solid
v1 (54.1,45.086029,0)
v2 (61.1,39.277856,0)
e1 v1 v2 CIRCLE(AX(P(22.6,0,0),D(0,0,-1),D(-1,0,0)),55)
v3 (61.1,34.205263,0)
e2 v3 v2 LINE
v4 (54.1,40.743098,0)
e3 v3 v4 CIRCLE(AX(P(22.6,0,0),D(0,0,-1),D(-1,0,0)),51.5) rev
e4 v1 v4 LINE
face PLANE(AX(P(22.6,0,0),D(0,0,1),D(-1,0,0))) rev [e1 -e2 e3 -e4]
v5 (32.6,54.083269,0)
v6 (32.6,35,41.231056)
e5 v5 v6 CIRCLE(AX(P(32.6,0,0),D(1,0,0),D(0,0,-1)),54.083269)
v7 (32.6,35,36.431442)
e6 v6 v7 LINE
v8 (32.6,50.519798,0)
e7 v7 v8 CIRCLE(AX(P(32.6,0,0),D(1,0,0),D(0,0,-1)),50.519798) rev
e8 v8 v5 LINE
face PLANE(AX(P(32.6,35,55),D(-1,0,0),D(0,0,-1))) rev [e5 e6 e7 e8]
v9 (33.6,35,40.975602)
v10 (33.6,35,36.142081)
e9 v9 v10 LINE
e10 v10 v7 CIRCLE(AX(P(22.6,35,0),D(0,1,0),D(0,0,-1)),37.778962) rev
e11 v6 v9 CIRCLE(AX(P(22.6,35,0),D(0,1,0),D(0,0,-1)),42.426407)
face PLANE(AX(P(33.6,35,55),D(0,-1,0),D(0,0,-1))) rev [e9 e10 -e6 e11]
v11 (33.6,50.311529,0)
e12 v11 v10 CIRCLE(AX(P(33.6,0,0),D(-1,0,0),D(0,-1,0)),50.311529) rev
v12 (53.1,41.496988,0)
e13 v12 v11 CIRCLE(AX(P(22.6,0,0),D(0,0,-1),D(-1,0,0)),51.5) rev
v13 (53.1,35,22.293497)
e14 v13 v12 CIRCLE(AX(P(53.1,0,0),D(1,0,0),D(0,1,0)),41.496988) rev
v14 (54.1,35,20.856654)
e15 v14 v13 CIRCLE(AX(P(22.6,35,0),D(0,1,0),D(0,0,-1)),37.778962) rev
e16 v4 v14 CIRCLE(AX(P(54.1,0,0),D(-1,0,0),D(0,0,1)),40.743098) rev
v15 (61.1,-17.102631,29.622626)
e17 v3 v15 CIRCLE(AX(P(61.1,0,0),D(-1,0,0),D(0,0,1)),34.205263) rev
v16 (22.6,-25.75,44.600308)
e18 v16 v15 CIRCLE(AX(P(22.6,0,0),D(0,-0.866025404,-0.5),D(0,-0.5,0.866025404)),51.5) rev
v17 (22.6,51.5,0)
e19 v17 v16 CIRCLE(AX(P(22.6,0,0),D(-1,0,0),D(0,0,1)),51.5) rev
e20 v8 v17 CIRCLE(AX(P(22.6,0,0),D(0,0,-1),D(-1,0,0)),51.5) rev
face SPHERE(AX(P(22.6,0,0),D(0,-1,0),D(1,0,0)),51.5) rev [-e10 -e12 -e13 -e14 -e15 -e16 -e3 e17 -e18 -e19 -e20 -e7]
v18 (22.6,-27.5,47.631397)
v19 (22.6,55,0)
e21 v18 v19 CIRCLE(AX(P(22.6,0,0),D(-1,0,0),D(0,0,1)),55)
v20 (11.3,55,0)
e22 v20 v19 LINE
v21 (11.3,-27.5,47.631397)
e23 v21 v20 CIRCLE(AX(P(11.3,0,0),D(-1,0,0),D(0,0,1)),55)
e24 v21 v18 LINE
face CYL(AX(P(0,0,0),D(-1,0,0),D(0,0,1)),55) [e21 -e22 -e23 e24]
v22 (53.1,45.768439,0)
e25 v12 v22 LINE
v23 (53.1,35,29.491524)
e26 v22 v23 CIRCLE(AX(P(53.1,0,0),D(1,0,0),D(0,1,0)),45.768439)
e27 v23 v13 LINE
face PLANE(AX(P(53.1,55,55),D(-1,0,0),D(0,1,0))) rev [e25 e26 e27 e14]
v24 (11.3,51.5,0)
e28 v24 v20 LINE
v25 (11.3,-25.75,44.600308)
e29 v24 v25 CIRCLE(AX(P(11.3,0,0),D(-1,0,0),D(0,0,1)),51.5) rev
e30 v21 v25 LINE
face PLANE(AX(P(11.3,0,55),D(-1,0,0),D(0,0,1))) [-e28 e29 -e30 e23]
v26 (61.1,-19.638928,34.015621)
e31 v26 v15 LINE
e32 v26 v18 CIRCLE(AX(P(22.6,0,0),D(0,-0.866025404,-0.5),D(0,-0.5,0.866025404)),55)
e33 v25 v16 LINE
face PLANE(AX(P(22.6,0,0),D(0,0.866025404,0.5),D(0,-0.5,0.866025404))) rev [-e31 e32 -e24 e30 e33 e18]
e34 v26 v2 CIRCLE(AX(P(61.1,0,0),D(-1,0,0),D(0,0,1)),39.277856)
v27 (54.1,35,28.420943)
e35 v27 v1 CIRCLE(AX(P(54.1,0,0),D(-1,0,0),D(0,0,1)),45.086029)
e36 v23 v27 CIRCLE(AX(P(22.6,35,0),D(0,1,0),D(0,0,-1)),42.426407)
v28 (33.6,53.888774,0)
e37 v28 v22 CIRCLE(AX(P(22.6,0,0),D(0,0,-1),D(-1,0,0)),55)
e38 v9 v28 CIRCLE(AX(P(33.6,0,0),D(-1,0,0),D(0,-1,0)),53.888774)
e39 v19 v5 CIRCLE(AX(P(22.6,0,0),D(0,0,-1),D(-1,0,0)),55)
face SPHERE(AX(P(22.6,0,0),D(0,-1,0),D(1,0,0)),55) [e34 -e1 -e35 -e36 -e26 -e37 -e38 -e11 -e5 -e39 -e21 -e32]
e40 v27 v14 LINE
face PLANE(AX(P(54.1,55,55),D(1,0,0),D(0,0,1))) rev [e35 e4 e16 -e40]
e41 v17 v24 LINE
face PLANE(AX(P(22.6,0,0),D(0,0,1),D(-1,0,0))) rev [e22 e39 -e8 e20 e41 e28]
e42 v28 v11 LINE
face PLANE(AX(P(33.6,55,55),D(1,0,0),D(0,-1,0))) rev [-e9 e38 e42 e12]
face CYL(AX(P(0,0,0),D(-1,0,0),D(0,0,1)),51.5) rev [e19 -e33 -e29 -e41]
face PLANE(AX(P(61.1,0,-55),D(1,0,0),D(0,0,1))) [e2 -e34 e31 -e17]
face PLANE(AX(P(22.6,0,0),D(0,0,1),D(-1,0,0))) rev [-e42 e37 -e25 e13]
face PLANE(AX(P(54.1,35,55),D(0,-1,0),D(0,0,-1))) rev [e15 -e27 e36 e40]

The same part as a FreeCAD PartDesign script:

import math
import FreeCAD as App
import Part
import Sketcher
from FreeCAD import Vector
Q = App.Units.Quantity


def add_polygon(sketch, points):
    """Adds a closed chain of lines whose ends are joined by coincident constraints."""
    first, n = sketch.GeometryCount, len(points)
    for a, b in zip(points, points[1:] + points[:1]):
        sketch.addGeometry(Part.LineSegment(App.Vector(*a, 0), App.Vector(*b, 0)), False)
    for i in range(n):
        sketch.addConstraint(Sketcher.Constraint("Coincident", first + i, 2, first + (i + 1) % n, 1))

doc = App.newDocument("Part")
params = doc.addObject("Spreadsheet::Sheet", "Params")
for row, (alias, value) in enumerate([
    ("sketch1_radius", "55 mm"),
    ("sketch1_radius2", "51.5 mm"),
    ("revolution_angle", "360 deg"),
    ("sketch2_width", "55 mm"),
    ("sketch2_height", "110 mm"),
    ("sketch3_height", "110 mm"),
    ("sketch5_width", "1 mm"),
    ("sketch5_height", "20 mm"),
    ("sketch6_width", "11.3 mm"),
    ("sketch6_height", "3.5 mm"),
    ("revolution2_angle", "360 deg"),
    ("sketch7_radius", "55 mm"),
    ("pocket5_length", "10 mm"),
    ("sketch8_width", "49.8 mm"),
    ("sketch10_radius", "55 mm"),
    ("pocket8_length", "70 mm"),
], start=1):
    params.set(f"A{row}", alias)
    params.set(f"B{row}", "=" + value)
    params.setAlias(f"B{row}", alias)

body = doc.addObject("PartDesign::Body", "Body")

sketch1 = body.newObject("Sketcher::SketchObject", "Sketch")
sketch1.AttachmentSupport = (doc.getObject("XY_Plane"), [""])
sketch1.MapMode = "FlatFace"
sketch1.addGeometry(Part.LineSegment(Vector(0, 51.5, 0), Vector(0, 55, 0)), False)
sketch1.addGeometry(Part.ArcOfCircle(Part.Circle(Vector(0, 0, 0), Vector(0, 0, 1), 55), math.radians(90), math.radians(270)), False)
sketch1.addGeometry(Part.LineSegment(Vector(0, -55, 0), Vector(0, -51.5, 0)), False)
sketch1.addGeometry(Part.ArcOfCircle(Part.Circle(Vector(0, 0, 0), Vector(0, 0, 1), 51.5), math.radians(90), math.radians(270)), False)
sketch1.addConstraint(Sketcher.Constraint("Coincident", 0, 2, 1, 1))
sketch1.addConstraint(Sketcher.Constraint("Coincident", 1, 2, 2, 1))
sketch1.addConstraint(Sketcher.Constraint("Coincident", 2, 2, 3, 2))
sketch1.addConstraint(Sketcher.Constraint("Coincident", 3, 1, 0, 1))
sketch1.addConstraint(Sketcher.Constraint("Vertical", 0))
sketch1.addConstraint(Sketcher.Constraint("Vertical", 2))
sketch1.addConstraint(Sketcher.Constraint("Coincident", 1, 3, -1, 1))
sketch1.addConstraint(Sketcher.Constraint("Coincident", 3, 3, -1, 1))
sketch1.addConstraint(Sketcher.Constraint("PointOnObject", 0, 2, -2))
sketch1.addConstraint(Sketcher.Constraint("PointOnObject", 1, 2, -2))
sketch1.addConstraint(Sketcher.Constraint("Radius", 1, 55.0))
sketch1.addConstraint(Sketcher.Constraint("Radius", 3, 51.5))
sketch1.setExpression("Constraints[10]", "Params.sketch1_radius")
sketch1.setExpression("Constraints[11]", "Params.sketch1_radius2")
revolution = body.newObject("PartDesign::Revolution", "Revolution")
revolution.Profile = sketch1
revolution.ReferenceAxis = (sketch1, ["V_Axis"])
revolution.setExpression("Angle", "Params.revolution_angle")

sketch2 = body.newObject("Sketcher::SketchObject", "Sketch001")
sketch2.AttachmentSupport = (doc.getObject("XY_Plane"), [""])
sketch2.MapMode = "FlatFace"
add_polygon(sketch2, [(0, 55), (0, -55), (55, -55), (55, 55)])
sketch2.addConstraint(Sketcher.Constraint("Vertical", 0))
sketch2.addConstraint(Sketcher.Constraint("Horizontal", 1))
sketch2.addConstraint(Sketcher.Constraint("Vertical", 2))
sketch2.addConstraint(Sketcher.Constraint("Horizontal", 3))
sketch2.addConstraint(Sketcher.Constraint("Symmetric", 0, 2, 3, 2, -1, 1))
sketch2.addConstraint(Sketcher.Constraint("DistanceX", 1, 1, 1, 2, 55.0))
sketch2.addConstraint(Sketcher.Constraint("DistanceY", 0, 2, 0, 1, 110.0))
sketch2.setExpression("Constraints[9]", "Params.sketch2_width")
sketch2.setExpression("Constraints[10]", "Params.sketch2_height")
pocket1 = body.newObject("PartDesign::Pocket", "Pocket")
pocket1.Profile = sketch2
pocket1.Type = "ThroughAll"
pocket1.Midplane = True

sketch3 = body.newObject("Sketcher::SketchObject", "Sketch002")
sketch3.AttachmentSupport = (doc.getObject("XY_Plane"), [""])
sketch3.MapMode = "FlatFace"
add_polygon(sketch3, [(-62, 55), (-62, -55), (-39, -55), (-39, 55)])
sketch3.addConstraint(Sketcher.Constraint("Vertical", 0))
sketch3.addConstraint(Sketcher.Constraint("Horizontal", 1))
sketch3.addConstraint(Sketcher.Constraint("Vertical", 2))
sketch3.addConstraint(Sketcher.Constraint("Horizontal", 3))
sketch3.addConstraint(Sketcher.Constraint("DistanceY", 0, 2, 0, 1, 110.0))
sketch3.addConstraint(Sketcher.Constraint("DistanceY", 0, 2, -1, 1, 55.0))
sketch3.addConstraint(Sketcher.Constraint("DistanceX", 1, 2, -1, 1, 38.5))
sketch3.addConstraint(Sketcher.Constraint("DistanceX", 1, 1, 1, 2, 23.273135))
sketch3.setExpression("Constraints[8]", "Params.sketch3_height")
pocket2 = body.newObject("PartDesign::Pocket", "Pocket001")
pocket2.Profile = sketch3
pocket2.Type = "ThroughAll"
pocket2.Midplane = True

sketch4 = body.newObject("Sketcher::SketchObject", "Sketch003")
sketch4.AttachmentSupport = (doc.getObject("YZ_Plane"), [""])
sketch4.MapMode = "FlatFace"
sketch4.AttachmentOffset = App.Placement(Vector(0, 0, -38.5), App.Rotation())
sketch4.addGeometry(Part.LineSegment(Vector(0, 0, 0), Vector(65, 0, 0)), False)
sketch4.addGeometry(Part.ArcOfCircle(Part.Circle(Vector(0, 0, 0), Vector(0, 0, 1), 65), math.radians(120), math.radians(360)), False)
sketch4.addGeometry(Part.LineSegment(Vector(-32, 56, 0), Vector(0, 0, 0)), False)
sketch4.addConstraint(Sketcher.Constraint("Coincident", 0, 2, 1, 2))
sketch4.addConstraint(Sketcher.Constraint("Coincident", 1, 1, 2, 1))
sketch4.addConstraint(Sketcher.Constraint("Coincident", 2, 2, 0, 1))
sketch4.addConstraint(Sketcher.Constraint("Horizontal", 0))
sketch4.addConstraint(Sketcher.Constraint("Coincident", 1, 3, -1, 1))
sketch4.addConstraint(Sketcher.Constraint("Coincident", 2, 2, -1, 1))
sketch4.addConstraint(Sketcher.Constraint("Angle", 2, Q("-60 deg")))
sketch4.addConstraint(Sketcher.Constraint("Radius", 1, 64.529887))
pocket3 = body.newObject("PartDesign::Pocket", "Pocket002")
pocket3.Profile = sketch4
pocket3.Type = "ThroughAll"
pocket3.Reversed = True

sketch5 = body.newObject("Sketcher::SketchObject", "Sketch004")
sketch5.AttachmentSupport = (doc.getObject("XY_Plane"), [""])
sketch5.MapMode = "FlatFace"
add_polygon(sketch5, [(-30.5, 55), (-30.5, 35), (-31.5, 35), (-31.5, 55)])
add_polygon(sketch5, [(-10, 55), (-10, 35), (-11, 35), (-11, 55)])
sketch5.addConstraint(Sketcher.Constraint("Vertical", 0))
sketch5.addConstraint(Sketcher.Constraint("Horizontal", 1))
sketch5.addConstraint(Sketcher.Constraint("Vertical", 2))
sketch5.addConstraint(Sketcher.Constraint("Horizontal", 3))
sketch5.addConstraint(Sketcher.Constraint("Vertical", 4))
sketch5.addConstraint(Sketcher.Constraint("Horizontal", 5))
sketch5.addConstraint(Sketcher.Constraint("Vertical", 6))
sketch5.addConstraint(Sketcher.Constraint("Horizontal", 7))
sketch5.addConstraint(Sketcher.Constraint("Horizontal", 1, 2, 4, 2))
sketch5.addConstraint(Sketcher.Constraint("Horizontal", 3, 2, 6, 2))
sketch5.addConstraint(Sketcher.Constraint("Equal", 3, 5))
sketch5.addConstraint(Sketcher.Constraint("DistanceX", 1, 2, 1, 1, 1.0))
sketch5.addConstraint(Sketcher.Constraint("DistanceY", 0, 2, 0, 1, 20.0))
sketch5.addConstraint(Sketcher.Constraint("DistanceY", -1, 1, 0, 2, 35.0))
sketch5.addConstraint(Sketcher.Constraint("DistanceX", 4, 2, -1, 1, 10.0))
sketch5.addConstraint(Sketcher.Constraint("DistanceX", 0, 2, -1, 1, 30.5))
sketch5.setExpression("Constraints[19]", "Params.sketch5_width")
sketch5.setExpression("Constraints[20]", "Params.sketch5_height")
pocket4 = body.newObject("PartDesign::Pocket", "Pocket003")
pocket4.Profile = sketch5
pocket4.Type = "ThroughAll"
pocket4.Reversed = True

sketch6 = body.newObject("Sketcher::SketchObject", "Sketch005")
sketch6.AttachmentSupport = (doc.getObject("XY_Plane"), [""])
sketch6.MapMode = "FlatFace"
add_polygon(sketch6, [(0, 55), (0, 51.5), (11.3, 51.5), (11.3, 55)])
sketch6.addConstraint(Sketcher.Constraint("Vertical", 0))
sketch6.addConstraint(Sketcher.Constraint("Horizontal", 1))
sketch6.addConstraint(Sketcher.Constraint("Vertical", 2))
sketch6.addConstraint(Sketcher.Constraint("Horizontal", 3))
sketch6.addConstraint(Sketcher.Constraint("PointOnObject", 0, 2, -2))
sketch6.addConstraint(Sketcher.Constraint("DistanceX", 1, 1, 1, 2, 11.3))
sketch6.addConstraint(Sketcher.Constraint("DistanceY", 0, 2, 0, 1, 3.5))
sketch6.addConstraint(Sketcher.Constraint("DistanceY", -1, 1, 2, 2, 55.0))
sketch6.setExpression("Constraints[9]", "Params.sketch6_width")
sketch6.setExpression("Constraints[10]", "Params.sketch6_height")
revolution2 = body.newObject("PartDesign::Revolution", "Revolution001")
revolution2.Profile = sketch6
revolution2.ReferenceAxis = (sketch6, ["H_Axis"])
revolution2.setExpression("Angle", "Params.revolution2_angle")

sketch7 = body.newObject("Sketcher::SketchObject", "Sketch006")
sketch7.AttachmentSupport = (doc.getObject("YZ_Plane"), [""])
sketch7.MapMode = "FlatFace"
sketch7.AttachmentOffset = App.Placement(Vector(0, 0, 10), App.Rotation())
sketch7.addGeometry(Part.LineSegment(Vector(0, 0, 0), Vector(55, 0, 0)), False)
sketch7.addGeometry(Part.ArcOfCircle(Part.Circle(Vector(0, 0, 0), Vector(0, 0, 1), 55), math.radians(120), math.radians(360)), False)
sketch7.addGeometry(Part.LineSegment(Vector(-28, 48, 0), Vector(0, 0, 0)), False)
sketch7.addConstraint(Sketcher.Constraint("Coincident", 0, 2, 1, 2))
sketch7.addConstraint(Sketcher.Constraint("Coincident", 1, 1, 2, 1))
sketch7.addConstraint(Sketcher.Constraint("Coincident", 2, 2, 0, 1))
sketch7.addConstraint(Sketcher.Constraint("Horizontal", 0))
sketch7.addConstraint(Sketcher.Constraint("Coincident", 1, 3, -1, 1))
sketch7.addConstraint(Sketcher.Constraint("Coincident", 2, 2, -1, 1))
sketch7.addConstraint(Sketcher.Constraint("Radius", 1, 55.0))
sketch7.addConstraint(Sketcher.Constraint("Angle", 2, Q("-60 deg")))
sketch7.setExpression("Constraints[6]", "Params.sketch7_radius")
pocket5 = body.newObject("PartDesign::Pocket", "Pocket004")
pocket5.Profile = sketch7
pocket5.setExpression("Length", "Params.pocket5_length")
body2 = doc.addObject("PartDesign::Body", "Body001")
doc.recompute()

body2.BaseFeature = body
doc.recompute()

mirroring = doc.addObject("Part::Mirroring", "Mirroring")
mirroring.Source = body
mirroring.Base = Vector(11.3, 55, 0)
mirroring.Normal = Vector(-1, 0, 0)
body3 = doc.addObject("PartDesign::Body", "Body002")
body3.BaseFeature = mirroring
boolean = body2.newObject("PartDesign::Boolean", "Boolean")
boolean.Type = "Fuse"
boolean.addObjects([body3])
doc.recompute()

sketch8 = body2.newObject("Sketcher::SketchObject", "Sketch007")
sketch8.AttachmentSupport = (doc.getObject("XY_Plane001"), [""])
sketch8.MapMode = "FlatFace"
add_polygon(sketch8, [(-38, 55), (-38, -31), (11, -31), (11, 57)])
sketch8.addConstraint(Sketcher.Constraint("Vertical", 0))
sketch8.addConstraint(Sketcher.Constraint("Horizontal", 1))
sketch8.addConstraint(Sketcher.Constraint("Vertical", 2))
sketch8.addConstraint(Sketcher.Constraint("DistanceX", 1, 1, 1, 2, 49.8))
sketch8.addConstraint(Sketcher.Constraint("DistanceX", 0, 2, -1, 1, 38.5))
sketch8.addConstraint(Sketcher.Constraint("DistanceY", 2, 1, 2, 2, 88.144202))
sketch8.addConstraint(Sketcher.Constraint("Distance", 3, 49.8362))
sketch8.addConstraint(Sketcher.Constraint("DistanceY", -1, 1, 3, 2, 54.805759))
sketch8.setExpression("Constraints[7]", "Params.sketch8_width")
pocket6 = body2.newObject("PartDesign::Pocket", "Pocket005")
pocket6.Profile = sketch8
pocket6.Type = "ThroughAll"
pocket6.Reversed = True

sketch9 = body2.newObject("Sketcher::SketchObject", "Sketch008")
sketch9.AttachmentSupport = (doc.getObject("XY_Plane001"), [""])
sketch9.MapMode = "FlatFace"
add_polygon(sketch9, [(11, 59), (5, 59), (5, -61), (11, -61)])
sketch9.addConstraint(Sketcher.Constraint("Horizontal", 0))
sketch9.addConstraint(Sketcher.Constraint("Vertical", 1))
sketch9.addConstraint(Sketcher.Constraint("Horizontal", 2))
sketch9.addConstraint(Sketcher.Constraint("Vertical", 3))
sketch9.addConstraint(Sketcher.Constraint("DistanceX", -1, 1, 2, 2, 11.3))
sketch9.addConstraint(Sketcher.Constraint("DistanceX", 0, 2, 0, 1, 6.732668))
sketch9.addConstraint(Sketcher.Constraint("DistanceY", 1, 2, 1, 1, 119.759929))
sketch9.addConstraint(Sketcher.Constraint("DistanceY", -1, 1, 0, 2, 58.911756))
pocket7 = body2.newObject("PartDesign::Pocket", "Pocket006")
pocket7.Profile = sketch9
pocket7.Type = "ThroughAll"
pocket7.Midplane = True

sketch10 = body2.newObject("Sketcher::SketchObject", "Sketch009")
sketch10.AttachmentSupport = (doc.getObject("YZ_Plane001"), [""])
sketch10.MapMode = "FlatFace"
sketch10.AttachmentOffset = App.Placement(Vector(0, 0, 12.6), App.Rotation())
sketch10.addGeometry(Part.LineSegment(Vector(55, 0, 0), Vector(0, 0, 0)), False)
sketch10.addGeometry(Part.LineSegment(Vector(0, 0, 0), Vector(-28, 48, 0)), False)
sketch10.addGeometry(Part.ArcOfCircle(Part.Circle(Vector(0, 0, 0), Vector(0, 0, 1), 55), math.radians(120), math.radians(360)), False)
sketch10.addConstraint(Sketcher.Constraint("Coincident", 0, 2, 1, 1))
sketch10.addConstraint(Sketcher.Constraint("Coincident", 1, 2, 2, 1))
sketch10.addConstraint(Sketcher.Constraint("Coincident", 2, 2, 0, 1))
sketch10.addConstraint(Sketcher.Constraint("Horizontal", 0))
sketch10.addConstraint(Sketcher.Constraint("Coincident", 2, 3, -1, 1))
sketch10.addConstraint(Sketcher.Constraint("Coincident", 0, 2, -1, 1))
sketch10.addConstraint(Sketcher.Constraint("Radius", 2, 55.0))
sketch10.addConstraint(Sketcher.Constraint("Angle", 1, Q("120 deg")))
sketch10.setExpression("Constraints[6]", "Params.sketch10_radius")
pocket8 = body2.newObject("PartDesign::Pocket", "Pocket007")
pocket8.Profile = sketch10
pocket8.setExpression("Length", "Params.pocket8_length")
mirroring.Visibility = False

doc.recompute()
